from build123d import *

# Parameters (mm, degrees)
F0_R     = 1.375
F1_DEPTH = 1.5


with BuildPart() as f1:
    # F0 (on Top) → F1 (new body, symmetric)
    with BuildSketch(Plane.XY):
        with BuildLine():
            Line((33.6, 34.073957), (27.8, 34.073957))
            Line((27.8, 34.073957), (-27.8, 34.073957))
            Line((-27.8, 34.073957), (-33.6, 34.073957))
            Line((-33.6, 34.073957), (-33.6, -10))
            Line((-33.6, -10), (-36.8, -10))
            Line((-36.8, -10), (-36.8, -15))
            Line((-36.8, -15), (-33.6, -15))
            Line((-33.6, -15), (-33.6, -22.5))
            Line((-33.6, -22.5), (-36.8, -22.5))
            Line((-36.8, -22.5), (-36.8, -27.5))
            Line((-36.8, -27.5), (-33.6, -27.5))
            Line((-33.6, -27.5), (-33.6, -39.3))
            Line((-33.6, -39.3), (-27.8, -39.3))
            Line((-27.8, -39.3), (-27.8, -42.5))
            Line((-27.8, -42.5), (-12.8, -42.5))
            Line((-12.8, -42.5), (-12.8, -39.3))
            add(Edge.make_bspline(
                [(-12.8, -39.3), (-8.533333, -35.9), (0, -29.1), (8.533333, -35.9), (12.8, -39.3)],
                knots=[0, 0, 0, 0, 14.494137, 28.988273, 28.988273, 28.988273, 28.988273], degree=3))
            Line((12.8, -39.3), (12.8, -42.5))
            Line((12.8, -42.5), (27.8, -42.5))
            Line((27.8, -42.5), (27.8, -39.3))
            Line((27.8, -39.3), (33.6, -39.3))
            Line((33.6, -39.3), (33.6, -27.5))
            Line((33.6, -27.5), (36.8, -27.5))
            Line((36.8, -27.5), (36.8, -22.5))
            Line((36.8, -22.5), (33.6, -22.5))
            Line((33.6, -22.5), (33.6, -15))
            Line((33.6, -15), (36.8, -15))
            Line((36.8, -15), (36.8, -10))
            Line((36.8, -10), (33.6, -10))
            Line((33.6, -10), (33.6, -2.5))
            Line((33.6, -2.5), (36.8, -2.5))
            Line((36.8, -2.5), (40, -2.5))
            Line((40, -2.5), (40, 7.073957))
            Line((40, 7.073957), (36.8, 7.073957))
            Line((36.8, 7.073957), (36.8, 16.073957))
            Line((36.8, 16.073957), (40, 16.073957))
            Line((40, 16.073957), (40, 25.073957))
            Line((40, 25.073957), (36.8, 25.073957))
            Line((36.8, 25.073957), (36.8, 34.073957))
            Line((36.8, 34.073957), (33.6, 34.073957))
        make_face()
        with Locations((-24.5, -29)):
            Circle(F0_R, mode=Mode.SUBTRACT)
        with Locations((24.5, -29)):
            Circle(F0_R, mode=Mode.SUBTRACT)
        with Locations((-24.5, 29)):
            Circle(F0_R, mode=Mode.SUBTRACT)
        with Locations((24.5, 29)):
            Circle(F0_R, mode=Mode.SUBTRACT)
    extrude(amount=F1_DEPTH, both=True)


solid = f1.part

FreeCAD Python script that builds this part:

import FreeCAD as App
import Part
import Sketcher

V = App.Vector
Q = App.Units.Quantity

doc = App.newDocument("Part")
body = doc.addObject("PartDesign::Body", "Body")

sketch1 = body.newObject("Sketcher::SketchObject", "Sketch")
sketch1.AttachmentSupport = (doc.getObject("XY_Plane"), [""])
sketch1.MapMode = "FlatFace"
sketch1.addGeometry(Part.LineSegment(V(-33.6, 34.073957, 0), V(-33.6, -10, 0)), False)
sketch1.addGeometry(Part.LineSegment(V(-33.6, -10, 0), V(-36.8, -10, 0)), False)
sketch1.addGeometry(Part.LineSegment(V(-36.8, -10, 0), V(-36.8, -15, 0)), False)
sketch1.addGeometry(Part.LineSegment(V(-36.8, -15, 0), V(-33.6, -15, 0)), False)
sketch1.addGeometry(Part.LineSegment(V(-33.6, -15, 0), V(-33.6, -22.5, 0)), False)
sketch1.addGeometry(Part.LineSegment(V(-33.6, -22.5, 0), V(-36.8, -22.5, 0)), False)
sketch1.addGeometry(Part.LineSegment(V(-36.8, -22.5, 0), V(-36.8, -27.5, 0)), False)
sketch1.addGeometry(Part.LineSegment(V(-36.8, -27.5, 0), V(-33.6, -27.5, 0)), False)
sketch1.addGeometry(Part.LineSegment(V(-33.6, -27.5, 0), V(-33.6, -39.3, 0)), False)
sketch1.addGeometry(Part.LineSegment(V(-33.6, -39.3, 0), V(-27.8, -39.3, 0)), False)
sketch1.addGeometry(Part.LineSegment(V(-27.8, -39.3, 0), V(-27.8, -42.5, 0)), False)
sketch1.addGeometry(Part.LineSegment(V(-27.8, -42.5, 0), V(-12.8, -42.5, 0)), False)
sketch1.addGeometry(Part.LineSegment(V(-12.8, -42.5, 0), V(-12.8, -39.3, 0)), False)
sketch1.addGeometry(Part.BSplineCurve([V(-12.8, -39.3, 0), V(-8.533333, -35.9, 0), V(0, -29.1, 0), V(8.533333, -35.9, 0), V(12.8, -39.3, 0)], [4, 1, 4], [0, 14.494137, 28.988273], False, 3, [1, 1, 1, 1, 1], False), False)
sketch1.addGeometry(Part.LineSegment(V(12.8, -39.3, 0), V(12.8, -42.5, 0)), False)
sketch1.addGeometry(Part.LineSegment(V(12.8, -42.5, 0), V(27.8, -42.5, 0)), False)
sketch1.addGeometry(Part.LineSegment(V(27.8, -42.5, 0), V(27.8, -39.3, 0)), False)
sketch1.addGeometry(Part.LineSegment(V(27.8, -39.3, 0), V(33.6, -39.3, 0)), False)
sketch1.addGeometry(Part.LineSegment(V(33.6, -39.3, 0), V(33.6, -27.5, 0)), False)
sketch1.addGeometry(Part.LineSegment(V(33.6, -27.5, 0), V(36.8, -27.5, 0)), False)
sketch1.addGeometry(Part.LineSegment(V(36.8, -27.5, 0), V(36.8, -22.5, 0)), False)
sketch1.addGeometry(Part.LineSegment(V(36.8, -22.5, 0), V(33.6, -22.5, 0)), False)
sketch1.addGeometry(Part.LineSegment(V(33.6, -22.5, 0), V(33.6, -15, 0)), False)
sketch1.addGeometry(Part.LineSegment(V(33.6, -15, 0), V(36.8, -15, 0)), False)
sketch1.addGeometry(Part.LineSegment(V(36.8, -15, 0), V(36.8, -10, 0)), False)
sketch1.addGeometry(Part.LineSegment(V(36.8, -10, 0), V(33.6, -10, 0)), False)
sketch1.addGeometry(Part.LineSegment(V(33.6, -10, 0), V(33.6, -2.5, 0)), False)
sketch1.addGeometry(Part.LineSegment(V(33.6, -2.5, 0), V(40, -2.5, 0)), False)
sketch1.addGeometry(Part.LineSegment(V(40, -2.5, 0), V(40, 7.073957, 0)), False)
sketch1.addGeometry(Part.LineSegment(V(40, 7.073957, 0), V(36.8, 7.073957, 0)), False)
sketch1.addGeometry(Part.LineSegment(V(36.8, 7.073957, 0), V(36.8, 16.073957, 0)), False)
sketch1.addGeometry(Part.LineSegment(V(36.8, 16.073957, 0), V(40, 16.073957, 0)), False)
sketch1.addGeometry(Part.LineSegment(V(40, 16.073957, 0), V(40, 25.073957, 0)), False)
sketch1.addGeometry(Part.LineSegment(V(40, 25.073957, 0), V(36.8, 25.073957, 0)), False)
sketch1.addGeometry(Part.LineSegment(V(36.8, 25.073957, 0), V(36.8, 34.073957, 0)), False)
sketch1.addGeometry(Part.LineSegment(V(36.8, 34.073957, 0), V(-33.6, 34.073957, 0)), False)
sketch1.addGeometry(Part.Circle(V(-24.5, -29, 0), V(0, 0, 1), 1.375), False)
sketch1.addGeometry(Part.Circle(V(24.5, -29, 0), V(0, 0, 1), 1.375), False)
sketch1.addGeometry(Part.Circle(V(-24.5, 29, 0), V(0, 0, 1), 1.375), False)
sketch1.addGeometry(Part.Circle(V(24.5, 29, 0), V(0, 0, 1), 1.375), False)
sketch1.addConstraint(Sketcher.Constraint("Block", 13))
sketch1.addConstraint(Sketcher.Constraint("Coincident", 0, 2, 1, 1))
sketch1.addConstraint(Sketcher.Constraint("Coincident", 1, 2, 2, 1))
sketch1.addConstraint(Sketcher.Constraint("Coincident", 2, 2, 3, 1))
sketch1.addConstraint(Sketcher.Constraint("Coincident", 3, 2, 4, 1))
sketch1.addConstraint(Sketcher.Constraint("Coincident", 4, 2, 5, 1))
sketch1.addConstraint(Sketcher.Constraint("Coincident", 5, 2, 6, 1))
sketch1.addConstraint(Sketcher.Constraint("Coincident", 6, 2, 7, 1))
sketch1.addConstraint(Sketcher.Constraint("Coincident", 7, 2, 8, 1))
sketch1.addConstraint(Sketcher.Constraint("Coincident", 8, 2, 9, 1))
sketch1.addConstraint(Sketcher.Constraint("Coincident", 9, 2, 10, 1))
sketch1.addConstraint(Sketcher.Constraint("Coincident", 10, 2, 11, 1))
sketch1.addConstraint(Sketcher.Constraint("Coincident", 11, 2, 12, 1))
sketch1.addConstraint(Sketcher.Constraint("Coincident", 12, 2, 13, 1))
sketch1.addConstraint(Sketcher.Constraint("Coincident", 13, 2, 14, 1))
sketch1.addConstraint(Sketcher.Constraint("Coincident", 14, 2, 15, 1))
sketch1.addConstraint(Sketcher.Constraint("Coincident", 15, 2, 16, 1))
sketch1.addConstraint(Sketcher.Constraint("Coincident", 16, 2, 17, 1))
sketch1.addConstraint(Sketcher.Constraint("Coincident", 17, 2, 18, 1))
sketch1.addConstraint(Sketcher.Constraint("Coincident", 18, 2, 19, 1))
sketch1.addConstraint(Sketcher.Constraint("Coincident", 19, 2, 20, 1))
sketch1.addConstraint(Sketcher.Constraint("Coincident", 20, 2, 21, 1))
sketch1.addConstraint(Sketcher.Constraint("Coincident", 21, 2, 22, 1))
sketch1.addConstraint(Sketcher.Constraint("Coincident", 22, 2, 23, 1))
sketch1.addConstraint(Sketcher.Constraint("Coincident", 23, 2, 24, 1))
sketch1.addConstraint(Sketcher.Constraint("Coincident", 24, 2, 25, 1))
sketch1.addConstraint(Sketcher.Constraint("Coincident", 25, 2, 26, 1))
sketch1.addConstraint(Sketcher.Constraint("Coincident", 26, 2, 27, 1))
sketch1.addConstraint(Sketcher.Constraint("Coincident", 27, 2, 28, 1))
sketch1.addConstraint(Sketcher.Constraint("Coincident", 28, 2, 29, 1))
sketch1.addConstraint(Sketcher.Constraint("Coincident", 29, 2, 30, 1))
sketch1.addConstraint(Sketcher.Constraint("Coincident", 30, 2, 31, 1))
sketch1.addConstraint(Sketcher.Constraint("Coincident", 31, 2, 32, 1))
sketch1.addConstraint(Sketcher.Constraint("Coincident", 32, 2, 33, 1))
sketch1.addConstraint(Sketcher.Constraint("Coincident", 33, 2, 34, 1))
sketch1.addConstraint(Sketcher.Constraint("Coincident", 34, 2, 35, 1))
sketch1.addConstraint(Sketcher.Constraint("Coincident", 35, 2, 0, 1))
sketch1.addConstraint(Sketcher.Constraint("Vertical", 0))
sketch1.addConstraint(Sketcher.Constraint("Horizontal", 1))
sketch1.addConstraint(Sketcher.Constraint("Vertical", 2))
sketch1.addConstraint(Sketcher.Constraint("Horizontal", 3))
sketch1.addConstraint(Sketcher.Constraint("Vertical", 4))
sketch1.addConstraint(Sketcher.Constraint("Horizontal", 5))
sketch1.addConstraint(Sketcher.Constraint("Vertical", 6))
sketch1.addConstraint(Sketcher.Constraint("Horizontal", 7))
sketch1.addConstraint(Sketcher.Constraint("Vertical", 8))
sketch1.addConstraint(Sketcher.Constraint("Horizontal", 9))
sketch1.addConstraint(Sketcher.Constraint("Vertical", 10))
sketch1.addConstraint(Sketcher.Constraint("Horizontal", 11))
sketch1.addConstraint(Sketcher.Constraint("Vertical", 12))
sketch1.addConstraint(Sketcher.Constraint("Vertical", 14))
sketch1.addConstraint(Sketcher.Constraint("Horizontal", 15))
sketch1.addConstraint(Sketcher.Constraint("Vertical", 16))
sketch1.addConstraint(Sketcher.Constraint("Horizontal", 17))
sketch1.addConstraint(Sketcher.Constraint("Vertical", 18))
sketch1.addConstraint(Sketcher.Constraint("Horizontal", 19))
sketch1.addConstraint(Sketcher.Constraint("Vertical", 20))
sketch1.addConstraint(Sketcher.Constraint("Horizontal", 21))
sketch1.addConstraint(Sketcher.Constraint("Vertical", 22))
sketch1.addConstraint(Sketcher.Constraint("Horizontal", 23))
sketch1.addConstraint(Sketcher.Constraint("Vertical", 24))
sketch1.addConstraint(Sketcher.Constraint("Horizontal", 25))
sketch1.addConstraint(Sketcher.Constraint("Vertical", 26))
sketch1.addConstraint(Sketcher.Constraint("Horizontal", 27))
sketch1.addConstraint(Sketcher.Constraint("Vertical", 28))
sketch1.addConstraint(Sketcher.Constraint("Horizontal", 29))
sketch1.addConstraint(Sketcher.Constraint("Vertical", 30))
sketch1.addConstraint(Sketcher.Constraint("Horizontal", 31))
sketch1.addConstraint(Sketcher.Constraint("Vertical", 32))
sketch1.addConstraint(Sketcher.Constraint("Horizontal", 33))
sketch1.addConstraint(Sketcher.Constraint("Vertical", 34))
sketch1.addConstraint(Sketcher.Constraint("Horizontal", 35))
sketch1.addConstraint(Sketcher.Constraint("Equal", 36, 37))
sketch1.addConstraint(Sketcher.Constraint("Equal", 37, 38))
sketch1.addConstraint(Sketcher.Constraint("Equal", 38, 39))
sketch1.addConstraint(Sketcher.Constraint("Symmetric", 37, 3, 38, 3, -1, 1))
sketch1.addConstraint(Sketcher.Constraint("Symmetric", 36, 3, 39, 3, -1, 1))
sketch1.addConstraint(Sketcher.Constraint("Symmetric", 36, 3, 37, 3, -2))
sketch1.addConstraint(Sketcher.Constraint("Symmetric", 10, 2, 15, 2, -2))
sketch1.addConstraint(Sketcher.Constraint("Symmetric", 8, 2, 17, 2, -2))
sketch1.addConstraint(Sketcher.Constraint("Symmetric", 6, 2, 19, 2, -2))
sketch1.addConstraint(Sketcher.Constraint("Symmetric", 4, 2, 21, 2, -2))
sketch1.addConstraint(Sketcher.Constraint("Symmetric", 2, 2, 23, 2, -2))
sketch1.addConstraint(Sketcher.Constraint("Symmetric", 0, 2, 25, 2, -2))
sketch1.addConstraint(Sketcher.Constraint("Horizontal", 9, 2, 12, 2))
sketch1.addConstraint(Sketcher.Constraint("Vertical", 0, 2, 3, 2))
sketch1.addConstraint(Sketcher.Constraint("Vertical", 2, 2, 5, 2))
sketch1.addConstraint(Sketcher.Constraint("Vertical", 4, 2, 7, 2))
sketch1.addConstraint(Sketcher.Constraint("Vertical", 24, 2, 29, 2))
sketch1.addConstraint(Sketcher.Constraint("Vertical", 28, 2, 31, 2))
sketch1.addConstraint(Sketcher.Constraint("Vertical", 30, 2, 33, 2))
sketch1.addConstraint(Sketcher.Constraint("Equal", 25, 29))
sketch1.addConstraint(Sketcher.Constraint("Equal", 2, 6))
sketch1.addConstraint(Sketcher.Constraint("Equal", 33, 10))
sketch1.addConstraint(Sketcher.Constraint("Equal", 22, 26))
sketch1.addConstraint(Sketcher.Constraint("Equal", 30, 32))
sketch1.addConstraint(Sketcher.Constraint("Equal", 32, 34))
sketch1.addConstraint(Sketcher.Constraint("Diameter", 36, Q("2.75 mm")))
sketch1.addConstraint(Sketcher.Constraint("DistanceX", 11, 1, 11, 2, Q("15 mm")))
sketch1.addConstraint(Sketcher.Constraint("DistanceY", 2, 2, 2, 1, Q("5 mm")))
sketch1.addConstraint(Sketcher.Constraint("DistanceY", 30, 1, 30, 2, Q("9 mm")))
sketch1.addConstraint(Sketcher.Constraint("DistanceX", 1, 2, 1, 1, Q("3.2 mm")))
sketch1.addConstraint(Sketcher.Constraint("DistanceX", 9, 1, 9, 2, Q("5.8 mm")))
sketch1.addConstraint(Sketcher.Constraint("DistanceY", 4, 2, 4, 1, Q("7.5 mm")))
sketch1.addConstraint(Sketcher.Constraint("DistanceY", 8, 2, 8, 1, Q("11.8 mm")))
sketch1.addConstraint(Sketcher.Constraint("DistanceY", 36, 3, -1, 1, Q("29 mm")))
sketch1.addConstraint(Sketcher.Constraint("DistanceX", 36, 3, 37, 3, Q("49 mm")))
sketch1.addConstraint(Sketcher.Constraint("DistanceY", 0, 2, 0, 1, Q("44.073957 mm")))
pad1 = body.newObject("PartDesign::Pad", "Pad")
pad1.Profile = sketch1
pad1.Length = 3
pad1.Midplane = True

doc.recompute()
